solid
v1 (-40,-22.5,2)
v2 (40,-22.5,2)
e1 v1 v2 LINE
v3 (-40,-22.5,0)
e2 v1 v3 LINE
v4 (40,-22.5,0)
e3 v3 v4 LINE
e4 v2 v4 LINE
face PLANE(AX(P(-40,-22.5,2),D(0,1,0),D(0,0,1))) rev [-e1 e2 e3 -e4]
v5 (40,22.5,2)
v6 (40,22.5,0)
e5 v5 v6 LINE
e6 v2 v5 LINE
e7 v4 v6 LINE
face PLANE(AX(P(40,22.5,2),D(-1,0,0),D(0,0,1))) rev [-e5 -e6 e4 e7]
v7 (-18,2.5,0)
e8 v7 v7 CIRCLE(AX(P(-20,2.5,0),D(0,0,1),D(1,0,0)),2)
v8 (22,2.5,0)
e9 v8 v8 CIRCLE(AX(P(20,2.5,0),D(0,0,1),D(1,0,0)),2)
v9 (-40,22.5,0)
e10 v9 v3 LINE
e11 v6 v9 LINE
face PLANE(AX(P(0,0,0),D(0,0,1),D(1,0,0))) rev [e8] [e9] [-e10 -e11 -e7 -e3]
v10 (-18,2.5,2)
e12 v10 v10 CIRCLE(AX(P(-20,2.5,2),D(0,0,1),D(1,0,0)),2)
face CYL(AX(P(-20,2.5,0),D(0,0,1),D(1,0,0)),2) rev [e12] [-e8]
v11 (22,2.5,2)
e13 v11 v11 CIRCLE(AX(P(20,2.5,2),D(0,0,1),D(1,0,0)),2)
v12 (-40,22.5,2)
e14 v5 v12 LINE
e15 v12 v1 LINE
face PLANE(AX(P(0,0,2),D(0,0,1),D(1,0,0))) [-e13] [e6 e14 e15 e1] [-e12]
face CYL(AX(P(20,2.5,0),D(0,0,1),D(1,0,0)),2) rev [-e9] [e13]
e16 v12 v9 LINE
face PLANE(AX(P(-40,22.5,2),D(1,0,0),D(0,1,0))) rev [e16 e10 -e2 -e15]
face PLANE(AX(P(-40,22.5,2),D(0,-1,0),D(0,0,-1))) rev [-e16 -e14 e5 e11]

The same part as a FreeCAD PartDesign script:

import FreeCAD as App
import Part
import Sketcher

V = App.Vector
Q = App.Units.Quantity


def add_polygon(sketch, points):
    """Adds a closed chain of lines whose ends are joined by coincident constraints."""
    first, n = sketch.GeometryCount, len(points)
    for a, b in zip(points, points[1:] + points[:1]):
        sketch.addGeometry(Part.LineSegment(App.Vector(*a, 0), App.Vector(*b, 0)), False)
    for i in range(n):
        sketch.addConstraint(Sketcher.Constraint("Coincident", first + i, 2, first + (i + 1) % n, 1))

doc = App.newDocument("Part")
params = doc.addObject("Spreadsheet::Sheet", "Params")
for row, (alias, value) in enumerate([
    ("sketch1_width", "80 mm"),
    ("sketch1_height", "45 mm"),
    ("pad1_length", "2 mm"),
    ("sketch2_diameter", "4 mm"),
    ("pocket1_length", "2 mm"),
], start=1):
    params.set(f"A{row}", alias)
    params.set(f"B{row}", "=" + value)
    params.setAlias(f"B{row}", alias)

body = doc.addObject("PartDesign::Body", "Body")

sketch1 = body.newObject("Sketcher::SketchObject", "Sketch")
sketch1.AttachmentSupport = (doc.getObject("XY_Plane"), [""])
sketch1.MapMode = "FlatFace"
add_polygon(sketch1, [(-40, 22.5), (-40, -22.5), (40, -22.5), (40, 22.5)])
sketch1.addConstraint(Sketcher.Constraint("Vertical", 0))
sketch1.addConstraint(Sketcher.Constraint("Horizontal", 1))
sketch1.addConstraint(Sketcher.Constraint("Vertical", 2))
sketch1.addConstraint(Sketcher.Constraint("Horizontal", 3))
sketch1.addConstraint(Sketcher.Constraint("Symmetric", 0, 2, 2, 2, -1, 1))
sketch1.addConstraint(Sketcher.Constraint("DistanceX", 1, 1, 1, 2, Q("80 mm")))
sketch1.addConstraint(Sketcher.Constraint("DistanceY", 0, 2, 0, 1, Q("45 mm")))
sketch1.setExpression("Constraints[9]", "Params.sketch1_width")
sketch1.setExpression("Constraints[10]", "Params.sketch1_height")
pad1 = body.newObject("PartDesign::Pad", "Pad")
pad1.Profile = sketch1
pad1.setExpression("Length", "Params.pad1_length")

sketch2 = body.newObject("Sketcher::SketchObject", "Sketch001")
sketch2.AttachmentSupport = (doc.getObject("XY_Plane"), [""])
sketch2.MapMode = "FlatFace"
sketch2.AttachmentOffset = App.Placement(V(0, 0, 2), App.Rotation())
sketch2.addGeometry(Part.Circle(V(-20, 2.5, 0), V(0, 0, 1), 2), False)
sketch2.addGeometry(Part.Circle(V(20, 2.5, 0), V(0, 0, 1), 2), False)
sketch2.addConstraint(Sketcher.Constraint("Equal", 0, 1))
sketch2.addConstraint(Sketcher.Constraint("Symmetric", 0, 3, 1, 3, -2))
sketch2.addConstraint(Sketcher.Constraint("Diameter", 0, Q("4 mm")))
sketch2.addConstraint(Sketcher.Constraint("DistanceX", 0, 3, -1, 1, Q("20 mm")))
sketch2.addConstraint(Sketcher.Constraint("DistanceY", -1, 1, 0, 3, Q("2.5 mm")))
sketch2.setExpression("Constraints[2]", "Params.sketch2_diameter")
pocket1 = body.newObject("PartDesign::Pocket", "Pocket")
pocket1.Profile = sketch2
pocket1.setExpression("Length", "Params.pocket1_length")

doc.recompute()
